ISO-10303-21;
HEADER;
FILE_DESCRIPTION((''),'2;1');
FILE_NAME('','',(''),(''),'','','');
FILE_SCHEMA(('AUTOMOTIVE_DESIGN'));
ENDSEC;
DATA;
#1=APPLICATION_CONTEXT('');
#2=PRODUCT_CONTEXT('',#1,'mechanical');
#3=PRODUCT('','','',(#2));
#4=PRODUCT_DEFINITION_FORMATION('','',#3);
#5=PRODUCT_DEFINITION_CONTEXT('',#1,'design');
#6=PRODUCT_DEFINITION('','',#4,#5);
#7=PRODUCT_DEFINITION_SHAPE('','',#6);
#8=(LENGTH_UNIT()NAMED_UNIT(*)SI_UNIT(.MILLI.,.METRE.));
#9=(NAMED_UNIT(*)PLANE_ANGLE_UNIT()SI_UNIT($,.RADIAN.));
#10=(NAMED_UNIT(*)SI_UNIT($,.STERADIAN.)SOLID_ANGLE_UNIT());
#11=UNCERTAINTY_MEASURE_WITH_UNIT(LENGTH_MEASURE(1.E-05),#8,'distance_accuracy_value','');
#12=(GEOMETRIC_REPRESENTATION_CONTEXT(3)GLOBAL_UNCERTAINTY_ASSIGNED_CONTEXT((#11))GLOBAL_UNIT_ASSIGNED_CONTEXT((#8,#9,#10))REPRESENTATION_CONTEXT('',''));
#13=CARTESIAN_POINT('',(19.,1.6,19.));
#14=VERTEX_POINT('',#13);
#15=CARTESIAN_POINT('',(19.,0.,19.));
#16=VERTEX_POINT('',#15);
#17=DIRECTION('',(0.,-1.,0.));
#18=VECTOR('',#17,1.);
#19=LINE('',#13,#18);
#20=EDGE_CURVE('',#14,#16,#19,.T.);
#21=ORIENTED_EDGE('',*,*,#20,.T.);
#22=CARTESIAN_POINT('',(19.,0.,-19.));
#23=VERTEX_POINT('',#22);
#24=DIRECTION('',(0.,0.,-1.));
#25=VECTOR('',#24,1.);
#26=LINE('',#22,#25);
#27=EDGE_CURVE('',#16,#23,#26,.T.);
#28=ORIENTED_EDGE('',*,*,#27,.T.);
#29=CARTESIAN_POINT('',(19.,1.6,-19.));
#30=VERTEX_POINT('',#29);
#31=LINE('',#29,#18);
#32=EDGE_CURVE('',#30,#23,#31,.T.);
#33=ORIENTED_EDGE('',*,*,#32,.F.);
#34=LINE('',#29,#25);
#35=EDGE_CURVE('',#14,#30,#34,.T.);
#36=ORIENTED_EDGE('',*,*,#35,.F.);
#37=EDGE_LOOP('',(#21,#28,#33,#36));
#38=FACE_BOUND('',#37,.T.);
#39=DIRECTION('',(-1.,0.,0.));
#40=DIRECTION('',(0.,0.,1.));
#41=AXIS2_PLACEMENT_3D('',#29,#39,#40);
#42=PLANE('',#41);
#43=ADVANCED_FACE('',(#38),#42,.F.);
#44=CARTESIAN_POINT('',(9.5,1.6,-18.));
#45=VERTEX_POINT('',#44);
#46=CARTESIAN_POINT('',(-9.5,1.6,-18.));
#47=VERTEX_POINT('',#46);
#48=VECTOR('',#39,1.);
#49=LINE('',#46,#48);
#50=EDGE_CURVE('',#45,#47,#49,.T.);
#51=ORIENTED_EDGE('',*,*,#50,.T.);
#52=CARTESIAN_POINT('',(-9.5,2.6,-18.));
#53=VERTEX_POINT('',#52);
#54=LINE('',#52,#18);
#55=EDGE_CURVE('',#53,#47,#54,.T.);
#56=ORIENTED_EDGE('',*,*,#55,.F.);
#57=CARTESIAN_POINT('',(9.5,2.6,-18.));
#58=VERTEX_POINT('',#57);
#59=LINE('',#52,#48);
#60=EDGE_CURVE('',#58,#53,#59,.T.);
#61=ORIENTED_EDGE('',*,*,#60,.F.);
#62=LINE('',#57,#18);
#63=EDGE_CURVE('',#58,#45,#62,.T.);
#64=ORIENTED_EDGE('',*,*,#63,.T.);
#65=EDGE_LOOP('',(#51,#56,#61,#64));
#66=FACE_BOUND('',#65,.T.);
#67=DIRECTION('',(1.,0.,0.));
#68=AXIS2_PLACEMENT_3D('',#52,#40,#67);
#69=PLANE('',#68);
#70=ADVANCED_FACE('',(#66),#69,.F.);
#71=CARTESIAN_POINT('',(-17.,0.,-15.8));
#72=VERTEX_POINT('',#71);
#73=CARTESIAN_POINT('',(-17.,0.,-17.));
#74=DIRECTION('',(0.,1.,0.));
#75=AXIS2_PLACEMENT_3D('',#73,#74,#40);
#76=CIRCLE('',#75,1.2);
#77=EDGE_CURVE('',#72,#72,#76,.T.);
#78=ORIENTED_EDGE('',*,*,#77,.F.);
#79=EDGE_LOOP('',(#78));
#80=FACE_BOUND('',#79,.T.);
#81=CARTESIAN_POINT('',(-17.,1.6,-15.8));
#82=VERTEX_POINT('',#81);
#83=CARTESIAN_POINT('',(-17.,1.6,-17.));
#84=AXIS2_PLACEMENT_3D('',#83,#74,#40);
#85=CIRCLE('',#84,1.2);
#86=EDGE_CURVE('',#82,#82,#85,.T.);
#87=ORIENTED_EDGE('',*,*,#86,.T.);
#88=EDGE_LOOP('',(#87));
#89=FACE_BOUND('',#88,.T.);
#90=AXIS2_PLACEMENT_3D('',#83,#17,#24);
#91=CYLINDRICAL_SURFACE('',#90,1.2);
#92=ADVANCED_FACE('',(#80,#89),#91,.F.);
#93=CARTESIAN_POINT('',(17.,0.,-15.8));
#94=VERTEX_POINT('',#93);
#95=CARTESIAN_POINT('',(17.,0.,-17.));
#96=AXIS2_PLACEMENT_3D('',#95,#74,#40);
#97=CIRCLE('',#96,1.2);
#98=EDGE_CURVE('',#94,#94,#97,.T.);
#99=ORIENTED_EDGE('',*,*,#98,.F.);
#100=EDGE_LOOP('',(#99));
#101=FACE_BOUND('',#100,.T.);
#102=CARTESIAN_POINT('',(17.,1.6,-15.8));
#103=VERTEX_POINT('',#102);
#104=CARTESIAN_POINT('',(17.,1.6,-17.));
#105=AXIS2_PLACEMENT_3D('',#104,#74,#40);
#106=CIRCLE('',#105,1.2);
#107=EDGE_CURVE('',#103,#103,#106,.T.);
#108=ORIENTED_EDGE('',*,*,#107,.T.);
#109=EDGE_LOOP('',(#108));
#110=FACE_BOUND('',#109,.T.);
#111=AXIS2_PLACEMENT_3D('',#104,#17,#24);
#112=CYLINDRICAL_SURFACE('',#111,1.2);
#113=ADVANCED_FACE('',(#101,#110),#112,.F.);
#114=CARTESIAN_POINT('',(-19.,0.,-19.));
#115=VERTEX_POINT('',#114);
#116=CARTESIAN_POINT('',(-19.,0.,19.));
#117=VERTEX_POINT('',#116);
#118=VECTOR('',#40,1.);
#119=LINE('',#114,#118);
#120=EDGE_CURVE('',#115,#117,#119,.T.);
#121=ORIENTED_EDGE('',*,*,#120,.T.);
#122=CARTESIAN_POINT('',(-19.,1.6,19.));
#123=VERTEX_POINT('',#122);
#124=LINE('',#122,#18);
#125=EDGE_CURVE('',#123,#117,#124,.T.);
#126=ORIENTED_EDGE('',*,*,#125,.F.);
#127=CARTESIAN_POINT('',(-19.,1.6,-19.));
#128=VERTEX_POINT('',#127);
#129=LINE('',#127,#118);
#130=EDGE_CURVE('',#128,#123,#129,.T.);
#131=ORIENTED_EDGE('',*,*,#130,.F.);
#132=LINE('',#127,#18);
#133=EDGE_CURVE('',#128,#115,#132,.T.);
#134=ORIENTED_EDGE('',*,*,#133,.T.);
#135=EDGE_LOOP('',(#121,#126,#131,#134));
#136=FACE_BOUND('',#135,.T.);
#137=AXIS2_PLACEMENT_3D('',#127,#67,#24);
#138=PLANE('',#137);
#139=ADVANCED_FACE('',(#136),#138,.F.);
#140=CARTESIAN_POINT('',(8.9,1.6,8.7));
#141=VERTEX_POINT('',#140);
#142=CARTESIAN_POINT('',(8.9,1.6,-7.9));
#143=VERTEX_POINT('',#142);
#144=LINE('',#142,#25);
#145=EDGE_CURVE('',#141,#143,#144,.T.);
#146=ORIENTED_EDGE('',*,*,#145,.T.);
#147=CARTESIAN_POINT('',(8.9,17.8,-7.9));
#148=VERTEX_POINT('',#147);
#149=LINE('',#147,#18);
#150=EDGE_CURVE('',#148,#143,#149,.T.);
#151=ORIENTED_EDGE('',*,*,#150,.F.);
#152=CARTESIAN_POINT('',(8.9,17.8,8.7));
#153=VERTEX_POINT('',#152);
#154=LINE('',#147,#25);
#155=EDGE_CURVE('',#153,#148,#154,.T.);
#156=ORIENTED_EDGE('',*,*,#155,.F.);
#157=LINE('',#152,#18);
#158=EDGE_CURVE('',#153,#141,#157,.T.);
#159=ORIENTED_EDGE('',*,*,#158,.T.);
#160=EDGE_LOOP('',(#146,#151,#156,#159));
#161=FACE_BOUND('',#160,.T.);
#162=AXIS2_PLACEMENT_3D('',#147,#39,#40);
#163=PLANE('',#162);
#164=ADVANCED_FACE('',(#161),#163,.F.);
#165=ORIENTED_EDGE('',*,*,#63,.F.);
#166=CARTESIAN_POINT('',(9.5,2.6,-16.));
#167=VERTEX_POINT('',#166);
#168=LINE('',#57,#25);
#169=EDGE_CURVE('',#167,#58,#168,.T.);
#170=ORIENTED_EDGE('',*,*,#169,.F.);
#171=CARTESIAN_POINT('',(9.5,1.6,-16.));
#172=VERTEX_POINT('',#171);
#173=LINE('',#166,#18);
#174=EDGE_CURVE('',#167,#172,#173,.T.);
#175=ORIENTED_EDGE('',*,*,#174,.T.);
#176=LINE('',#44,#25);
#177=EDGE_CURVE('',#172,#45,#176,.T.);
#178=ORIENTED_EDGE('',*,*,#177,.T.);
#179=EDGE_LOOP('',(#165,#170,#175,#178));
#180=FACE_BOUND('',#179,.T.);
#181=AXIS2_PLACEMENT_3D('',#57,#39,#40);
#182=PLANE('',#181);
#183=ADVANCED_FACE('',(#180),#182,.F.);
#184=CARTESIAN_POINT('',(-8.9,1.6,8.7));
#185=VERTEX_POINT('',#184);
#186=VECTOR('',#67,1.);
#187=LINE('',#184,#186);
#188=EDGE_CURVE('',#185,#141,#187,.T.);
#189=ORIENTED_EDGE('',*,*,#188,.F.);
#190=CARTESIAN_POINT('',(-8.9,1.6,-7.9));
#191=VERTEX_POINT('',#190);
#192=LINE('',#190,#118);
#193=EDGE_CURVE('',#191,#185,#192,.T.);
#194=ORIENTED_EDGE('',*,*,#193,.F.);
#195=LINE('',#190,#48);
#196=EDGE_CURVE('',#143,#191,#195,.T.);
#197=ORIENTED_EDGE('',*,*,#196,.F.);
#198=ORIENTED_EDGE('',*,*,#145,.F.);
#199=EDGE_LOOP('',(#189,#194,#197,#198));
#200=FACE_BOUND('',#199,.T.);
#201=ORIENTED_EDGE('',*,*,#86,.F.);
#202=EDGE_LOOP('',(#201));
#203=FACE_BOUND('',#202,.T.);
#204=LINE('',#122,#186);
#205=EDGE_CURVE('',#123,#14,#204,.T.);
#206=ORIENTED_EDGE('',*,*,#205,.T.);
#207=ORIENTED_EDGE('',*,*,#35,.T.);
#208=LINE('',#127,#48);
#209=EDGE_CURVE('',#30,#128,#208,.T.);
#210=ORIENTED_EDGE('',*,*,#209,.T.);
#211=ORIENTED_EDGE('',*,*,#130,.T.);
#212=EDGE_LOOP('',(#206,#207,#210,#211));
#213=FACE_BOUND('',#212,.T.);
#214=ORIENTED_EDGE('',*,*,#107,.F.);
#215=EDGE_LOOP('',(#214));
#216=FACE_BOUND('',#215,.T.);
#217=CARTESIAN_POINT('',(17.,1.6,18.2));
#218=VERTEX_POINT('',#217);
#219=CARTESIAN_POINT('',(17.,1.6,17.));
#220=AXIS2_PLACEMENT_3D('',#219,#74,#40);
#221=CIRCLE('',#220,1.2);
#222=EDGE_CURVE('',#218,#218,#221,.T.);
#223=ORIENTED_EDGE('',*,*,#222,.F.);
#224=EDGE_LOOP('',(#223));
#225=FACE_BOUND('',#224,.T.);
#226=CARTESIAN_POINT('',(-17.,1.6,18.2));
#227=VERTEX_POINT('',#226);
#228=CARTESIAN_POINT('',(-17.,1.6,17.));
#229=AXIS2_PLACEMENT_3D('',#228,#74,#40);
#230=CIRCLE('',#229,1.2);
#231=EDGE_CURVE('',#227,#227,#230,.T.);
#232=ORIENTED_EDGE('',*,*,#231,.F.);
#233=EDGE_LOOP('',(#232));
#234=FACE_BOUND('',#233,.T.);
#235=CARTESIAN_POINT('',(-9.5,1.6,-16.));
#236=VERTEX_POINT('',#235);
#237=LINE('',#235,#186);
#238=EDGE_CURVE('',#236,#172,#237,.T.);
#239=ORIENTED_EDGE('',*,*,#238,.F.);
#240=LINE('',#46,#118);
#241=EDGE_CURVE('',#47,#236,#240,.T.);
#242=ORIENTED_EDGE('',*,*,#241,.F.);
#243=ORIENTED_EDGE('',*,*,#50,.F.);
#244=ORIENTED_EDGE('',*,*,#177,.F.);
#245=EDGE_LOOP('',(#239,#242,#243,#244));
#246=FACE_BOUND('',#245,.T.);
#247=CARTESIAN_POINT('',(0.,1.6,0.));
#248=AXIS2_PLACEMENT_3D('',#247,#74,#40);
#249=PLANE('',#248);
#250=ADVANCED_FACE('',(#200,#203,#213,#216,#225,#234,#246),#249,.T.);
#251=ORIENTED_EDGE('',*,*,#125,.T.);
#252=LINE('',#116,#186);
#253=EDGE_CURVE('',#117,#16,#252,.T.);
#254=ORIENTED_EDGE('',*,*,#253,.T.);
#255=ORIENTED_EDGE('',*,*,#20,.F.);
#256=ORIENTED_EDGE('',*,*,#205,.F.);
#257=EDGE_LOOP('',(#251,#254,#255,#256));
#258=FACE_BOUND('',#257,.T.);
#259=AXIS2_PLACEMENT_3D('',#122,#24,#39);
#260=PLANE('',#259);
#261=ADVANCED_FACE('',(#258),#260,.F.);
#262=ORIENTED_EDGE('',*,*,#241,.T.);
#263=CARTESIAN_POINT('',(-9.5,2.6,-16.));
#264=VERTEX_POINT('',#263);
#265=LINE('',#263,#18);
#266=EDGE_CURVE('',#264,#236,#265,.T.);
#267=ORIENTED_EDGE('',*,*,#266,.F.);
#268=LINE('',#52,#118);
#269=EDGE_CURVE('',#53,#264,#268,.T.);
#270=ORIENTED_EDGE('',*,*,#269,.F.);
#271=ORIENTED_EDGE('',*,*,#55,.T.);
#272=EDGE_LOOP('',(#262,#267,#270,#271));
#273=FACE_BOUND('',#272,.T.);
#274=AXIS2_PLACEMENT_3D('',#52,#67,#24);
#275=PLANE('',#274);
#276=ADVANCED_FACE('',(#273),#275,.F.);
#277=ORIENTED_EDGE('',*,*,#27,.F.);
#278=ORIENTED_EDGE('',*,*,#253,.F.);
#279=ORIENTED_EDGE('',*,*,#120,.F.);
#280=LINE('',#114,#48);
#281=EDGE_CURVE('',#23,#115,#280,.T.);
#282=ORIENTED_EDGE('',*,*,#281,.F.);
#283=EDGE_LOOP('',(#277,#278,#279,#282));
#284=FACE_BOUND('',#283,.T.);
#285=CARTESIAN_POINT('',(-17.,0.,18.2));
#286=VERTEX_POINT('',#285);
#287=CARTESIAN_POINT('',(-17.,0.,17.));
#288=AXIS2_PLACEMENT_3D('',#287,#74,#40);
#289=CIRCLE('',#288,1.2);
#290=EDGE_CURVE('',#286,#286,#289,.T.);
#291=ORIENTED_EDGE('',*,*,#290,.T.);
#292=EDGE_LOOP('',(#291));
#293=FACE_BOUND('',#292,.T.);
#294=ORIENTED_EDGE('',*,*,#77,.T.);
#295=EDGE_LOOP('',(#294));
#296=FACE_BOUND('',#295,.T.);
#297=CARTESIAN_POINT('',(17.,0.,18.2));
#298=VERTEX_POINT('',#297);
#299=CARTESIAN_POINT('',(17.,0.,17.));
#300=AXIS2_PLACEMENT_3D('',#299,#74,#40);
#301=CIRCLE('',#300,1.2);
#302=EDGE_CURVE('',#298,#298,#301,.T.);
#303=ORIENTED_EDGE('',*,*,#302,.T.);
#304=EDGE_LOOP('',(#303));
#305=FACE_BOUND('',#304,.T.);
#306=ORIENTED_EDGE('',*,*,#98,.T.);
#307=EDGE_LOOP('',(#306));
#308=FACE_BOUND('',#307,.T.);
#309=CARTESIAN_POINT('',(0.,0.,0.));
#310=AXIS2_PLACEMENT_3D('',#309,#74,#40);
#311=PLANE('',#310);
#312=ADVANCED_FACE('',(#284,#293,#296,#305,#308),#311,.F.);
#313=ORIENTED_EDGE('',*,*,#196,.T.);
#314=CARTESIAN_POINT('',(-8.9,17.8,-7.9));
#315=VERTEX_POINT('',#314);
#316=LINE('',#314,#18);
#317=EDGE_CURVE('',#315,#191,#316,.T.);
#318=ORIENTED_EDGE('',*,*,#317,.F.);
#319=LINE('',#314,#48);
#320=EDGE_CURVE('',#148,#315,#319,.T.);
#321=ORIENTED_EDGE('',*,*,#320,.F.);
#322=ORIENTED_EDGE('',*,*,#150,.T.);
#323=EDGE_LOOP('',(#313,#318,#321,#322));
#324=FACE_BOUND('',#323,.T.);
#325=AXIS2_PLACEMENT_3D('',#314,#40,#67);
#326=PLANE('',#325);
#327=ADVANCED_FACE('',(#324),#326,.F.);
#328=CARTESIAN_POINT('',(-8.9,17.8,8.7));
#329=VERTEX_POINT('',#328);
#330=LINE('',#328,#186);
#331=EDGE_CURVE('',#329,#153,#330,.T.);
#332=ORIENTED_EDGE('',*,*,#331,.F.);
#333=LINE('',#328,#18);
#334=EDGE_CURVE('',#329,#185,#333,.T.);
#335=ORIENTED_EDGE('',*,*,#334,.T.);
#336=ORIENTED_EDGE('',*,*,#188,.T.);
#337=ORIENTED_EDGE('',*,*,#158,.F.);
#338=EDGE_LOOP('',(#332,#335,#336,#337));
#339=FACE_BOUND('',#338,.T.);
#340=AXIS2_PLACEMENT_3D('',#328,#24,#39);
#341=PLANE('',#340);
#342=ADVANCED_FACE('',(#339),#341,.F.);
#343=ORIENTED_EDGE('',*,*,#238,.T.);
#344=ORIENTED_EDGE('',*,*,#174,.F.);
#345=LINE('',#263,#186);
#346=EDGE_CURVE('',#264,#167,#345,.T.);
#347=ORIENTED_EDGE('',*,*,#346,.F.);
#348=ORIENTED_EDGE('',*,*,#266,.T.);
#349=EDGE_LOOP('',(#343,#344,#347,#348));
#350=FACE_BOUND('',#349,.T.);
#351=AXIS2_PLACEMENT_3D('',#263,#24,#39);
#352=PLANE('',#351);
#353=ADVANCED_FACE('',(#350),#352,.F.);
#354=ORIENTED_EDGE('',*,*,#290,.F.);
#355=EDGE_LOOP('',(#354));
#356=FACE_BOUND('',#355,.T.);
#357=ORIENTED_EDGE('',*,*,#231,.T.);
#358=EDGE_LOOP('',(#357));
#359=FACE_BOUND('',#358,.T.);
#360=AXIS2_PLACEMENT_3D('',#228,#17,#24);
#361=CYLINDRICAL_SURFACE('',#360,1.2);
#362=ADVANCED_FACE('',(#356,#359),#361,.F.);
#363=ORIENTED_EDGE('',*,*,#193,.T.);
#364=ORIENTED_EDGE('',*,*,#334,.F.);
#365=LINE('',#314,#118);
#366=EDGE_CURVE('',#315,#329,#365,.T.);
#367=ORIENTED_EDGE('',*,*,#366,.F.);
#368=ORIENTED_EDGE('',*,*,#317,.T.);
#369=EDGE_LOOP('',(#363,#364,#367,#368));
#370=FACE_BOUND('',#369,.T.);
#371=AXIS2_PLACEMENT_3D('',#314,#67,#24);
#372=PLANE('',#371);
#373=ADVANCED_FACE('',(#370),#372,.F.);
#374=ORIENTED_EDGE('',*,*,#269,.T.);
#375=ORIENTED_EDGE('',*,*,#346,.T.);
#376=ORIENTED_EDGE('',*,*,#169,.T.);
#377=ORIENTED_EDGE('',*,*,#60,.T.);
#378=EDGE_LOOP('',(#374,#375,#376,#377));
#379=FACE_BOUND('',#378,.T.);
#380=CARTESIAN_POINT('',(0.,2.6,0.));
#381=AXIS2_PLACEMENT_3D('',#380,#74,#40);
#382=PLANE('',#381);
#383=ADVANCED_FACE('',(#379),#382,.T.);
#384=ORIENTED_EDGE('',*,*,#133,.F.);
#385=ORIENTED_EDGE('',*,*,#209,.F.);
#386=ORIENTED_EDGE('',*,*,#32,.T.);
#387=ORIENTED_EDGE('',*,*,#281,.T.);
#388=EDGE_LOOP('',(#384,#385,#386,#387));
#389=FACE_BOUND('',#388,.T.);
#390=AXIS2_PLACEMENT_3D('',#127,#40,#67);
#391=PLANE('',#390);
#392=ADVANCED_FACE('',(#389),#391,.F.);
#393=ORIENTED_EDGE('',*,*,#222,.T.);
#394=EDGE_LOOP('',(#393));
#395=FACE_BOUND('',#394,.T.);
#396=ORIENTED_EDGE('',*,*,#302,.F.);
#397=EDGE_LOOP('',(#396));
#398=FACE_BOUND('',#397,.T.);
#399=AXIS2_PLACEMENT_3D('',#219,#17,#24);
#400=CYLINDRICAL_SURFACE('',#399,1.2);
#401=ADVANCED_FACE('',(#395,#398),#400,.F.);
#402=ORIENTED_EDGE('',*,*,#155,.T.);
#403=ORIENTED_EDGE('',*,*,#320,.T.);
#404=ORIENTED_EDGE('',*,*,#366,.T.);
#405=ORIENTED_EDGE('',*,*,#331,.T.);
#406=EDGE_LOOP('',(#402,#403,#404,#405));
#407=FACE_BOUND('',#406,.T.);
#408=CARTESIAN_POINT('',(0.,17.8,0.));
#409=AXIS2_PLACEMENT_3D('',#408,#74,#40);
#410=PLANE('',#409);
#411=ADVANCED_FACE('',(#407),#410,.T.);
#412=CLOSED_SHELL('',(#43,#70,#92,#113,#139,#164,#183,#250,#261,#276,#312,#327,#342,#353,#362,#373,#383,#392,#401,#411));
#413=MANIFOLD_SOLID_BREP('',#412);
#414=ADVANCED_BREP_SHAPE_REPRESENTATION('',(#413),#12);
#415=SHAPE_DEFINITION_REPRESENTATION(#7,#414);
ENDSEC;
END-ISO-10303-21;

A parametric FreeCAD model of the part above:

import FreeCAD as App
import Part
import Sketcher
from FreeCAD import Vector


def add_polygon(sketch, points):
    """Adds a closed chain of lines whose ends are joined by coincident constraints."""
    first, n = sketch.GeometryCount, len(points)
    for a, b in zip(points, points[1:] + points[:1]):
        sketch.addGeometry(Part.LineSegment(App.Vector(*a, 0), App.Vector(*b, 0)), False)
    for i in range(n):
        sketch.addConstraint(Sketcher.Constraint("Coincident", first + i, 2, first + (i + 1) % n, 1))

doc = App.newDocument("Part")
body = doc.addObject("PartDesign::Body", "Body")

# Sketch on XZ plane
sketch1 = doc.addObject("Sketcher::SketchObject", "Sketch")
body.addObject(sketch1)
sketch1.AttachmentSupport = (doc.XZ_Plane, [""])
sketch1.MapMode = "FlatFace"
add_polygon(sketch1, [(-19, -19), (-19, 19), (19, 19), (19, -19)])  # lines 0-3
sketch1.addGeometry(Part.Circle(Vector(-17, 17, 0), Vector(0, 0, 1), 1.2), False)  # 4
sketch1.addGeometry(Part.Circle(Vector(17, 17, 0), Vector(0, 0, 1), 1.2), False)  # 5
sketch1.addGeometry(Part.Circle(Vector(-17, -17, 0), Vector(0, 0, 1), 1.2), False)  # 6
sketch1.addGeometry(Part.Circle(Vector(17, -17, 0), Vector(0, 0, 1), 1.2), False)  # 7
sketch1.addConstraint(Sketcher.Constraint("Vertical", 0))
sketch1.addConstraint(Sketcher.Constraint("Horizontal", 1))
sketch1.addConstraint(Sketcher.Constraint("Vertical", 2))
sketch1.addConstraint(Sketcher.Constraint("Horizontal", 3))
sketch1.addConstraint(Sketcher.Constraint("Equal", 4, 5))
sketch1.addConstraint(Sketcher.Constraint("Equal", 5, 6))
sketch1.addConstraint(Sketcher.Constraint("Equal", 6, 7))
sketch1.addConstraint(Sketcher.Constraint("Symmetric", 5, 3, 6, 3, -1, 1))
sketch1.addConstraint(Sketcher.Constraint("Symmetric", 4, 3, 7, 3, -1, 1))
sketch1.addConstraint(Sketcher.Constraint("Symmetric", 0, 2, 2, 2, -1, 1))
sketch1.addConstraint(Sketcher.Constraint("Symmetric", 4, 3, 5, 3, -2))
sketch1.addConstraint(Sketcher.Constraint("Equal", 3, 0))
sketch1.addConstraint(Sketcher.Constraint("Diameter", 4, 2.4))
sketch1.addConstraint(Sketcher.Constraint("DistanceX", 1, 1, 1, 2, 38.0))
sketch1.addConstraint(Sketcher.Constraint("DistanceX", 4, 3, -1, 1, 17.0))
sketch1.addConstraint(Sketcher.Constraint("DistanceY", -1, 1, 4, 3, 17.0))
pad1 = doc.addObject("PartDesign::Pad", "Pad")
body.addObject(pad1)
pad1.Profile = sketch1
pad1.Length = 1.6
pad1.Reversed = True

# Sketch on XZ plane
sketch2 = doc.addObject("Sketcher::SketchObject", "Sketch001")
body.addObject(sketch2)
sketch2.AttachmentSupport = (doc.XZ_Plane, [""])
sketch2.MapMode = "FlatFace"
sketch2.AttachmentOffset = App.Placement(Vector(0, 0, -1.6), App.Rotation())
add_polygon(sketch2, [(-9, -8), (-9, 9), (9, 9), (9, -8)])  # lines 0-3
sketch2.addConstraint(Sketcher.Constraint("Vertical", 0))
sketch2.addConstraint(Sketcher.Constraint("Horizontal", 1))
sketch2.addConstraint(Sketcher.Constraint("Vertical", 2))
sketch2.addConstraint(Sketcher.Constraint("Horizontal", 3))
sketch2.addConstraint(Sketcher.Constraint("DistanceX", 1, 1, 1, 2, 17.8))
sketch2.addConstraint(Sketcher.Constraint("DistanceY", 0, 1, 0, 2, 16.6))
sketch2.addConstraint(Sketcher.Constraint("DistanceX", 0, 2, -1, 1, 8.9))
sketch2.addConstraint(Sketcher.Constraint("DistanceY", -1, 1, 0, 2, 8.7))
pad2 = doc.addObject("PartDesign::Pad", "Pad001")
body.addObject(pad2)
pad2.Profile = sketch2
pad2.Length = 16.2
pad2.Reversed = True

# Sketch on XZ plane
sketch3 = doc.addObject("Sketcher::SketchObject", "Sketch002")
body.addObject(sketch3)
sketch3.AttachmentSupport = (doc.XZ_Plane, [""])
sketch3.MapMode = "FlatFace"
sketch3.AttachmentOffset = App.Placement(Vector(0, 0, -1.6), App.Rotation())
add_polygon(sketch3, [(-9.5, -18), (-9.5, -16), (9.5, -16), (9.5, -18)])  # lines 0-3
sketch3.addConstraint(Sketcher.Constraint("Vertical", 0))
sketch3.addConstraint(Sketcher.Constraint("Horizontal", 1))
sketch3.addConstraint(Sketcher.Constraint("Vertical", 2))
sketch3.addConstraint(Sketcher.Constraint("Horizontal", 3))
sketch3.addConstraint(Sketcher.Constraint("DistanceX", 1, 1, 1, 2, 19.0))
sketch3.addConstraint(Sketcher.Constraint("DistanceY", 0, 1, 0, 2, 2.0))
sketch3.addConstraint(Sketcher.Constraint("DistanceY", 0, 2, -1, 1, 16.0))
sketch3.addConstraint(Sketcher.Constraint("DistanceX", 0, 2, -1, 1, 9.5))
pad3 = doc.addObject("PartDesign::Pad", "Pad002")
body.addObject(pad3)
pad3.Profile = sketch3
pad3.Length = 1
pad3.Reversed = True

doc.recompute()
